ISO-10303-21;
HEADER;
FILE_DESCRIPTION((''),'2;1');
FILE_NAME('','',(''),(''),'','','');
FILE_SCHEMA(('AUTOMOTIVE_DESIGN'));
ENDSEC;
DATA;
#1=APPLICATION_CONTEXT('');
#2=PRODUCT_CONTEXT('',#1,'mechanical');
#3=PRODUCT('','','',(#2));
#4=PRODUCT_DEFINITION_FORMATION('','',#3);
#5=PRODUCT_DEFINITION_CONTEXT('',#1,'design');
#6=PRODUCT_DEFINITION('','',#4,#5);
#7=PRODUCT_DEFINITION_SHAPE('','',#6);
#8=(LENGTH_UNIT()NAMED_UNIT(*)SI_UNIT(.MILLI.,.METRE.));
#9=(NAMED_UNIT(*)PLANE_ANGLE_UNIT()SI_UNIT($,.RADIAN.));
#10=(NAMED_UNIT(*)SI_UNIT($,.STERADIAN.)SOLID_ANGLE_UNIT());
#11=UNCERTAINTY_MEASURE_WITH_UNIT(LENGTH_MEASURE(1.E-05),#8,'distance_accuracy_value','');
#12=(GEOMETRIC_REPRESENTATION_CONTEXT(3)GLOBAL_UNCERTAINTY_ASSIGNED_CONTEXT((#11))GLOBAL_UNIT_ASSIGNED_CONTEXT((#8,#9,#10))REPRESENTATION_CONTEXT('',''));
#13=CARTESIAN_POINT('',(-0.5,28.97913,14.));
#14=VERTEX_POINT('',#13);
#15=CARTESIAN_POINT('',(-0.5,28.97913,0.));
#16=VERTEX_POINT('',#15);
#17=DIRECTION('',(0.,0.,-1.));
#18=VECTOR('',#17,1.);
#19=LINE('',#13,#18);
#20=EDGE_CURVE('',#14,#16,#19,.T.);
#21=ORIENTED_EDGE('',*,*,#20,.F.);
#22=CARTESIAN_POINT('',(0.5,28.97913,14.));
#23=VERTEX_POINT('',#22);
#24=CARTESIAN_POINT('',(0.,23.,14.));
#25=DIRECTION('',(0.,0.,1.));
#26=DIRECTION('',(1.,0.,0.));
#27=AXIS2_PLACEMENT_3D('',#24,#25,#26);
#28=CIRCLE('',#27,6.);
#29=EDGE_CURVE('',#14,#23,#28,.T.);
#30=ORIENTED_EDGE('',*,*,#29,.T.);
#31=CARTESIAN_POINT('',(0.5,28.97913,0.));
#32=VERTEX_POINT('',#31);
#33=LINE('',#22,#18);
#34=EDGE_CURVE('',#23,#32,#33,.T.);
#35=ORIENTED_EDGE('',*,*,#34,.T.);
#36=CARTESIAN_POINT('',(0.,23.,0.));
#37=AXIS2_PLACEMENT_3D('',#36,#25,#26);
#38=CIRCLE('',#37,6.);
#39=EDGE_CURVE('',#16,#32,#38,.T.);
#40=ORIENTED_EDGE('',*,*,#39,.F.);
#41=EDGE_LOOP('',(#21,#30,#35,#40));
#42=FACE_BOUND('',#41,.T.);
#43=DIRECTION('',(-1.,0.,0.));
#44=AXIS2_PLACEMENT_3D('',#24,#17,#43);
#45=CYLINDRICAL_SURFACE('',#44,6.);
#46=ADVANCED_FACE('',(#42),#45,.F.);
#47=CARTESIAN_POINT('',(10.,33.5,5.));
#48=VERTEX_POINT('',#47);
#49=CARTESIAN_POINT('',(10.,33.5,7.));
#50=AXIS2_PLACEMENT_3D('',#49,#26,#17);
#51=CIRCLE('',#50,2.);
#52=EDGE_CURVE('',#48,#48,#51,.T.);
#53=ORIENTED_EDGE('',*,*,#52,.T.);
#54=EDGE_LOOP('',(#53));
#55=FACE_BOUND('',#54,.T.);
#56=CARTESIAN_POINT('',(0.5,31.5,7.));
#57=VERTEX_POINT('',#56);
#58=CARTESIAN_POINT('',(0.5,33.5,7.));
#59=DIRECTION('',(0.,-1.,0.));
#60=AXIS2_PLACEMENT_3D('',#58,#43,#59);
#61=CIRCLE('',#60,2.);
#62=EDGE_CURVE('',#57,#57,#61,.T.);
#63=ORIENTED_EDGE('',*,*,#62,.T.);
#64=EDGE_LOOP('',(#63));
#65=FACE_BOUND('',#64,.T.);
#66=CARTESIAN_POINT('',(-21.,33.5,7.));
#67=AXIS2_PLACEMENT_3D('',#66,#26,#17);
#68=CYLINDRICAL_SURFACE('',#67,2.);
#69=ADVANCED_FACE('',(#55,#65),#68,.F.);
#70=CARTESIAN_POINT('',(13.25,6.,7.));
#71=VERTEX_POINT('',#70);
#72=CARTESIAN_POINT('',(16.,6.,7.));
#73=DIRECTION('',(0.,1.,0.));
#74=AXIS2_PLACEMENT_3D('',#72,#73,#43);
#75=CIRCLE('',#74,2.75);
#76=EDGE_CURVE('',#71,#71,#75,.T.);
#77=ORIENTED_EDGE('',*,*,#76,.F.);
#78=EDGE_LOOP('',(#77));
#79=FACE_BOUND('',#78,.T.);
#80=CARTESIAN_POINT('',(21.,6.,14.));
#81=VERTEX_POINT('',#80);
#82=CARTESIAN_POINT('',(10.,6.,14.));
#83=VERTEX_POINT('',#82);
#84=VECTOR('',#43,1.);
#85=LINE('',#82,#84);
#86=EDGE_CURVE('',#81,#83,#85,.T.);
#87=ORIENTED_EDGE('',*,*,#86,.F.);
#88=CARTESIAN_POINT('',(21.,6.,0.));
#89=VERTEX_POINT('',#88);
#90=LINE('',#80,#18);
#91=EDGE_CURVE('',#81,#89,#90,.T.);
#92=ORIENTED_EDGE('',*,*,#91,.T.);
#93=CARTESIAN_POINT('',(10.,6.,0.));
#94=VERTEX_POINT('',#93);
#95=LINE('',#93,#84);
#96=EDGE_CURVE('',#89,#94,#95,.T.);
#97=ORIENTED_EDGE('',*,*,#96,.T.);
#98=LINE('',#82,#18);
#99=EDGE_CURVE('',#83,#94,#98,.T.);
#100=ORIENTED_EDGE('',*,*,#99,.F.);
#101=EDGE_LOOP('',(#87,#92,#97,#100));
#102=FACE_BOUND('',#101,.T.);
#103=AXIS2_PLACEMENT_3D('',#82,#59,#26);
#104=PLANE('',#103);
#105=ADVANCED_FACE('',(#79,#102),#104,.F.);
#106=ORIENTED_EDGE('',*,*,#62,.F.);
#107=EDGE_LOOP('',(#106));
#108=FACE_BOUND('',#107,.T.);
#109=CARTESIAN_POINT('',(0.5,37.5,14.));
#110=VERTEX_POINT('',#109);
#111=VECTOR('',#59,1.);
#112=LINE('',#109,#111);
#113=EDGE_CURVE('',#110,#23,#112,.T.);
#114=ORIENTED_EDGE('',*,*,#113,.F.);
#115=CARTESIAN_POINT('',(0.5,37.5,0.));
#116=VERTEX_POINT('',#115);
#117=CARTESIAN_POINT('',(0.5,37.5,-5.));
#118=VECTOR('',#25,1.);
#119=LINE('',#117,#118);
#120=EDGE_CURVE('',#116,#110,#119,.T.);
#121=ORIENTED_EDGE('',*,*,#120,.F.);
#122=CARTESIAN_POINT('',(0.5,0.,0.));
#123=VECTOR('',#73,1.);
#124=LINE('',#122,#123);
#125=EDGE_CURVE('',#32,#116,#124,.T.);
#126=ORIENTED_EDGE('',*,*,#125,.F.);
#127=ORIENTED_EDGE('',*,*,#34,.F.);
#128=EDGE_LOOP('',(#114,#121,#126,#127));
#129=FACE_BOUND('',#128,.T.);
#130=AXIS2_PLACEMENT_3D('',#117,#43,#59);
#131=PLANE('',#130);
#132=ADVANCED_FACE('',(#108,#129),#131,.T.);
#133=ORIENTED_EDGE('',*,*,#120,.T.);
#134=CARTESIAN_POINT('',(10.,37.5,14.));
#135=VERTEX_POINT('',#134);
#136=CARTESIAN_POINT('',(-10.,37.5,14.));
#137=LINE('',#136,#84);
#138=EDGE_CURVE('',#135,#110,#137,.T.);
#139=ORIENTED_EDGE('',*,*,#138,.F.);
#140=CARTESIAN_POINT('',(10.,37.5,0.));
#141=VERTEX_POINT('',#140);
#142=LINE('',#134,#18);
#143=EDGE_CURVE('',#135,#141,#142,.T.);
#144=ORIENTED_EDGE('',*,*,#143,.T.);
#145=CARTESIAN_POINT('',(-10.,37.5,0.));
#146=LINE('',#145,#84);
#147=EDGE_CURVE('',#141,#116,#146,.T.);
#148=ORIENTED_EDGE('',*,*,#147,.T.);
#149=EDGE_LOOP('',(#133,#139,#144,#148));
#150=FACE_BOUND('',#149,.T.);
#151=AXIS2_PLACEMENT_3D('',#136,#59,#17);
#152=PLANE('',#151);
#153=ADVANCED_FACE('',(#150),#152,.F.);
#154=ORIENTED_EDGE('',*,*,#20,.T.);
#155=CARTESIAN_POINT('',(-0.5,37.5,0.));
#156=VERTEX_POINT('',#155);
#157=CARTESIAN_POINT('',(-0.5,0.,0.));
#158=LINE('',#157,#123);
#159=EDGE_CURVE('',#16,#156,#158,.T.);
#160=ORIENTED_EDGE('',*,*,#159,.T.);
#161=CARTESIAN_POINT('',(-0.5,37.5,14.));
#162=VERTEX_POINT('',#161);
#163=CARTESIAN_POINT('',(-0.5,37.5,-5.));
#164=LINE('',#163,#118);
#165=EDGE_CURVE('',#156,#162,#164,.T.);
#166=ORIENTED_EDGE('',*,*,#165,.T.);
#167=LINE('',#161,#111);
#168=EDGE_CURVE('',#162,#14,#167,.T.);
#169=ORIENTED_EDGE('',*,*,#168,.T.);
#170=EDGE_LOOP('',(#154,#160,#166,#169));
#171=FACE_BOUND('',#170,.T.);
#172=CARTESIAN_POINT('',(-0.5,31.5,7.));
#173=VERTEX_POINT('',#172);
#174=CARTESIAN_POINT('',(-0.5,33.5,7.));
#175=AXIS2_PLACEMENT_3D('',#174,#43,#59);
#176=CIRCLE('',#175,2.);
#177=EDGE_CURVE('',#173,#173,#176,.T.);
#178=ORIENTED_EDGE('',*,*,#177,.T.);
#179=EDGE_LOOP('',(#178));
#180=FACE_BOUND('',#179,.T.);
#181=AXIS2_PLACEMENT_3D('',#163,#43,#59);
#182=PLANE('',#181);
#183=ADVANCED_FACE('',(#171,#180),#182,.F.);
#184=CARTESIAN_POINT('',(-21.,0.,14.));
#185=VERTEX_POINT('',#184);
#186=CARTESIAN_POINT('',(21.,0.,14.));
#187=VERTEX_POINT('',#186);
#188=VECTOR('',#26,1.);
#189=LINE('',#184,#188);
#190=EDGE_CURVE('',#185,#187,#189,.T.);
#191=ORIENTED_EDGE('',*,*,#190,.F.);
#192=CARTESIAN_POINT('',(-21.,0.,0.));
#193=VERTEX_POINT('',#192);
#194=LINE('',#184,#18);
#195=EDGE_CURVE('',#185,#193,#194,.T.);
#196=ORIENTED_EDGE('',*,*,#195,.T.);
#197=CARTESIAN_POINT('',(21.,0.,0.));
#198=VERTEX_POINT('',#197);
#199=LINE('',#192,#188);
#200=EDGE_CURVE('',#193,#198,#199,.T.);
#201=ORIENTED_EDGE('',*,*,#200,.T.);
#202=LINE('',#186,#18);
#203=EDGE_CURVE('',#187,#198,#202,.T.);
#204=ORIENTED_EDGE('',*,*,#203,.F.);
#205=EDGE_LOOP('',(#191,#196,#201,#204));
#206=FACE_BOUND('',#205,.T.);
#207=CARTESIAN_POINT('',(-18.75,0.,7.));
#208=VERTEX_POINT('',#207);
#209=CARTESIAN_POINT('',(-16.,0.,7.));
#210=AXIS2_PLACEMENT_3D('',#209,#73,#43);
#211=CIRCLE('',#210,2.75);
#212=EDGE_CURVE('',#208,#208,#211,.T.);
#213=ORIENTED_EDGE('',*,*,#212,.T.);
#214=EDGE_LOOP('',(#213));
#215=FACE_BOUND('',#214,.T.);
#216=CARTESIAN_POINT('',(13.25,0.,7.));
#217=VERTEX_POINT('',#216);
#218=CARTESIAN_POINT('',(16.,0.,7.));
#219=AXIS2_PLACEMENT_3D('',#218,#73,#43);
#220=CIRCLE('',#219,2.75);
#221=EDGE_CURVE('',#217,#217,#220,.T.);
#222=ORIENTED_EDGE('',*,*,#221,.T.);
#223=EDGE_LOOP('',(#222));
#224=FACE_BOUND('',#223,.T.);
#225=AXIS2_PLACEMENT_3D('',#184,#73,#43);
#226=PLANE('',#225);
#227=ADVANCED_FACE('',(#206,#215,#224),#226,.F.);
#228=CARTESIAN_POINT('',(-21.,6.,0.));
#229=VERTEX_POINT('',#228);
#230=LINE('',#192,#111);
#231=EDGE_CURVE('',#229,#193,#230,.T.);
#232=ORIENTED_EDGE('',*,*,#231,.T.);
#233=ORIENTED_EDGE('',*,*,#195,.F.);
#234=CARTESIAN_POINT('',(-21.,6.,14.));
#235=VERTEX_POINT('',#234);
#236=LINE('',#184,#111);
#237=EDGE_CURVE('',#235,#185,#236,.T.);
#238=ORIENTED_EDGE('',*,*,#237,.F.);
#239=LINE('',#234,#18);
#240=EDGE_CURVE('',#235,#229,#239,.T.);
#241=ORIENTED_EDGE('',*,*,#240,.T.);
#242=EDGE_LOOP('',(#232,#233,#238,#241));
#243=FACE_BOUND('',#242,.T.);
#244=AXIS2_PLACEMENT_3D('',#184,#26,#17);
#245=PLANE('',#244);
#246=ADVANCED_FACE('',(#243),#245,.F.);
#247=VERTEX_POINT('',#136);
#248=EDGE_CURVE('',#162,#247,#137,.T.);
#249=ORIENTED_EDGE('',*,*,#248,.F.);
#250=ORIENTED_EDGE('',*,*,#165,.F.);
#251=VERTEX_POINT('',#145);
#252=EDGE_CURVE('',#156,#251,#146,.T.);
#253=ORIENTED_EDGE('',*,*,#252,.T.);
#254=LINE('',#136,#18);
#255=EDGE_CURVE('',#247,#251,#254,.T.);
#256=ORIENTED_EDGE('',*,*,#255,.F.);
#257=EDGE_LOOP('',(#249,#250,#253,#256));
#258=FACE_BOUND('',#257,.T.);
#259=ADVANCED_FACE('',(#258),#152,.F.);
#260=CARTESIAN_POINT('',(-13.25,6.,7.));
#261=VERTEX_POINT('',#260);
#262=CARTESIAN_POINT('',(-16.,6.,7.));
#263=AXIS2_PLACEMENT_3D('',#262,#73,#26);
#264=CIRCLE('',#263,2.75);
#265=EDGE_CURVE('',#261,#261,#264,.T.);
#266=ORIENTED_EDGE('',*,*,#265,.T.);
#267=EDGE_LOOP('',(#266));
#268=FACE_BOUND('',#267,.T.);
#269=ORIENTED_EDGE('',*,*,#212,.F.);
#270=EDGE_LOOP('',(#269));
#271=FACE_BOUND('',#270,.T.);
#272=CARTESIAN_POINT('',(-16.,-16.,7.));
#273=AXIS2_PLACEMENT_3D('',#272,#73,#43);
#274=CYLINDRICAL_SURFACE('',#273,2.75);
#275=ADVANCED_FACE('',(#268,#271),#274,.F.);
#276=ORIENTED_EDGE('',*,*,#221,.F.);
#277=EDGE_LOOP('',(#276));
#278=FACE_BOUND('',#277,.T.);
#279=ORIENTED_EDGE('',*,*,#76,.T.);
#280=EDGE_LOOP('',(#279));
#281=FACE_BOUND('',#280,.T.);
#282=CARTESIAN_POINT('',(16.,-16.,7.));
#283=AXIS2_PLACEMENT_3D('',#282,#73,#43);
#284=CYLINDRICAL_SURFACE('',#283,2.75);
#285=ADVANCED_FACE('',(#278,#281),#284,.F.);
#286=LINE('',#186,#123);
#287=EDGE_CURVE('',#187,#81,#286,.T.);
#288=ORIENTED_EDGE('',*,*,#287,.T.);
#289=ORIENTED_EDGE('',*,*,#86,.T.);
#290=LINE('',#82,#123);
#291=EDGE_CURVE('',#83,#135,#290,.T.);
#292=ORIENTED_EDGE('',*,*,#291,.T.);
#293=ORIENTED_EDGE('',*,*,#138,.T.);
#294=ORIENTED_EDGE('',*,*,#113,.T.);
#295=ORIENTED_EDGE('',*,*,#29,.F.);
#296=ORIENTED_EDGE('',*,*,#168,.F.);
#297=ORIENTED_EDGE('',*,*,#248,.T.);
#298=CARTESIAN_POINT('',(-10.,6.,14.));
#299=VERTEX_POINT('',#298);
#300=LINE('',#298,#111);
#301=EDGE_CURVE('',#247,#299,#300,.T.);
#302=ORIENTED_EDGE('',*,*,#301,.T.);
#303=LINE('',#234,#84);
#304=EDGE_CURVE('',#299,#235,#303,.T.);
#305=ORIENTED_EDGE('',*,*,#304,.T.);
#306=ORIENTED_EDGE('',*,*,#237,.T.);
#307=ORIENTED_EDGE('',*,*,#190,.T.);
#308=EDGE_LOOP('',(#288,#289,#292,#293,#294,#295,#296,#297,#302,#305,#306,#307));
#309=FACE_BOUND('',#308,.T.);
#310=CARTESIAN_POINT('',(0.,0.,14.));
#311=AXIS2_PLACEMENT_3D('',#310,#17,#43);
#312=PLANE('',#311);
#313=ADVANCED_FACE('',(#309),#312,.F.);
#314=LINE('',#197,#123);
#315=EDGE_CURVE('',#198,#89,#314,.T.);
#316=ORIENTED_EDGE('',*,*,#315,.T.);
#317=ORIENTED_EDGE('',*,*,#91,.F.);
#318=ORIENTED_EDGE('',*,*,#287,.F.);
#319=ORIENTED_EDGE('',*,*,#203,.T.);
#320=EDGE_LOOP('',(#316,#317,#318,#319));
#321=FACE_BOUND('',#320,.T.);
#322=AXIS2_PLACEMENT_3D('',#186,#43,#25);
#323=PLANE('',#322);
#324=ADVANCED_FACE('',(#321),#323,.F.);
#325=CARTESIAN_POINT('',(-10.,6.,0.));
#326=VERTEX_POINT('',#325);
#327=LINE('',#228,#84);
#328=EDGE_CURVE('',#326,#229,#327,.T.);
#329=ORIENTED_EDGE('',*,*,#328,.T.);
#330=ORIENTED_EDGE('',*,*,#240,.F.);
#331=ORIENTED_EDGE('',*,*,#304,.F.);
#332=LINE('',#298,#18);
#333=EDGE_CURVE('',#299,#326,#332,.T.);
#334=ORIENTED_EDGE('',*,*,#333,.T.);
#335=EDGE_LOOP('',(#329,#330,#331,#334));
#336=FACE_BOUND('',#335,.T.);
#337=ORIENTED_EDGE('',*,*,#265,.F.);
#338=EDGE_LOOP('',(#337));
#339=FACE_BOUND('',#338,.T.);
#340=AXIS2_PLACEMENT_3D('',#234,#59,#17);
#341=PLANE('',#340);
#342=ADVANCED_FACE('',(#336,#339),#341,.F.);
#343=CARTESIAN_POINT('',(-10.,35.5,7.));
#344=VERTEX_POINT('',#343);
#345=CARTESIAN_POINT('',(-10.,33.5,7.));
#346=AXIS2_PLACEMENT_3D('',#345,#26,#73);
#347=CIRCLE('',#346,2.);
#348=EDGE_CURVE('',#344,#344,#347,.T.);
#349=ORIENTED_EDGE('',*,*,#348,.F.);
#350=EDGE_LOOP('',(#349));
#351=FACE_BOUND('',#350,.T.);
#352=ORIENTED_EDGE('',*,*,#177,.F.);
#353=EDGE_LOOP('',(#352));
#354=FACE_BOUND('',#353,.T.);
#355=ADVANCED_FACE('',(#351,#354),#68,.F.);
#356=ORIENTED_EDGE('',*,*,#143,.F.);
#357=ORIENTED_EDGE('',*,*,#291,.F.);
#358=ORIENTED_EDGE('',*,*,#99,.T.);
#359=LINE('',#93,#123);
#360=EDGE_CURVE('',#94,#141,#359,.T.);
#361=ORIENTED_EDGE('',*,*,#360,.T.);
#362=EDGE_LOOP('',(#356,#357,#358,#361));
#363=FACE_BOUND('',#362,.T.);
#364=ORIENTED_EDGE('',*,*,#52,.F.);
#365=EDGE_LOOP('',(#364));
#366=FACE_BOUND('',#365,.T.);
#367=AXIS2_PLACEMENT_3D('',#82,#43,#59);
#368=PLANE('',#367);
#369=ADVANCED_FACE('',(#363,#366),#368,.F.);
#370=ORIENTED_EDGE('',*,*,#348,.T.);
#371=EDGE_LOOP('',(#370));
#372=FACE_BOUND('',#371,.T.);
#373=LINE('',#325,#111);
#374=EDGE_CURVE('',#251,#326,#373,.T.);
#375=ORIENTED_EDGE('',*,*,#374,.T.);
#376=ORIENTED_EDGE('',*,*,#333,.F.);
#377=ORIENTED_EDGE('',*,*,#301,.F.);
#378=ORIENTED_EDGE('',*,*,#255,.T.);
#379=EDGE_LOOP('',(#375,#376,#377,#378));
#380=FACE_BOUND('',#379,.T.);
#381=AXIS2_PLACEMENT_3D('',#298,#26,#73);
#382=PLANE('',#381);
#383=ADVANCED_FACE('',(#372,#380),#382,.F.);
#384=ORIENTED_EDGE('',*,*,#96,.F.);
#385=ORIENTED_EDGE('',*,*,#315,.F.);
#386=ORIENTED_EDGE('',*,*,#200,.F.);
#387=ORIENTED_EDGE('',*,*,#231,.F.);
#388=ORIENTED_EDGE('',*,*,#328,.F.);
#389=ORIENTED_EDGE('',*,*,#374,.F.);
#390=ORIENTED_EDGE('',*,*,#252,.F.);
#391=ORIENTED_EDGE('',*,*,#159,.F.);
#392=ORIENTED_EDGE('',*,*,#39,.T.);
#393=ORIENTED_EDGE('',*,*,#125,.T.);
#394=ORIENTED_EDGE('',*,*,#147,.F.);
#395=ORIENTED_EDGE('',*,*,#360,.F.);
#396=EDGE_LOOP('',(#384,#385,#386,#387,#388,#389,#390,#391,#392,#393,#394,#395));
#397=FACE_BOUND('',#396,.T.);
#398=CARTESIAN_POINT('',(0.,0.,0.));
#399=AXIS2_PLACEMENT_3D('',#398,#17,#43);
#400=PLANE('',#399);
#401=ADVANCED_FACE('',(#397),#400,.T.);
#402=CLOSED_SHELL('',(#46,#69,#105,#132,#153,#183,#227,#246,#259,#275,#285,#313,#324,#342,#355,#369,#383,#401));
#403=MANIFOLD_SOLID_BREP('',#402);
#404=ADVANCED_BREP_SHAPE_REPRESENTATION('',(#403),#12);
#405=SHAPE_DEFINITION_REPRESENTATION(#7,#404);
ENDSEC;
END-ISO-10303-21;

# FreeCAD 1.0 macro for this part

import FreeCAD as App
import Part
import Sketcher

V = App.Vector

doc = App.newDocument("Part")
params = doc.addObject("Spreadsheet::Sheet", "Params")
for row, (alias, value) in enumerate([
    ("sketch1_diameter", "12 mm"),
    ("sketch1_width", "42 mm"),
    ("sketch1_width2", "11 mm"),
    ("sketch1_height", "6 mm"),
    ("sketch1_height2", "31.5 mm"),
    ("pad1_length", "14 mm"),
    ("sketch2_width", "1 mm"),
    ("pocket1_length", "19 mm"),
    ("sketch3_diameter", "4 mm"),
    ("pocket2_length", "31 mm"),
    ("sketch4_diameter", "5.5 mm"),
    ("pocket3_length", "22 mm"),
], start=1):
    params.set(f"A{row}", alias)
    params.set(f"B{row}", "=" + value)
    params.setAlias(f"B{row}", alias)

body = doc.addObject("PartDesign::Body", "Body")

sketch1 = doc.addObject("Sketcher::SketchObject", "Sketch")
body.addObject(sketch1)
sketch1.AttachmentSupport = (doc.XY_Plane, [""])
sketch1.MapMode = "FlatFace"
sketch1.addGeometry([
    Part.LineSegment(V(-21, 0, 0), V(21, 0, 0)),
    Part.LineSegment(V(21, 0, 0), V(21, 6, 0)),
    Part.LineSegment(V(21, 6, 0), V(10, 6, 0)),
    Part.LineSegment(V(10, 6, 0), V(10, 37.5, 0)),
    Part.LineSegment(V(10, 37.5, 0), V(-10, 37.5, 0)),
    Part.LineSegment(V(-10, 37.5, 0), V(-10, 6, 0)),
    Part.LineSegment(V(-10, 6, 0), V(-21, 6, 0)),
    Part.LineSegment(V(-21, 6, 0), V(-21, 0, 0)),
    Part.Circle(V(0, 23, 0), V(0, 0, 1), 6),
], False)
sketch1.addConstraint([
    Sketcher.Constraint("Coincident", 0, 2, 1, 1),
    Sketcher.Constraint("Coincident", 1, 2, 2, 1),
    Sketcher.Constraint("Coincident", 2, 2, 3, 1),
    Sketcher.Constraint("Coincident", 3, 2, 4, 1),
    Sketcher.Constraint("Coincident", 4, 2, 5, 1),
    Sketcher.Constraint("Coincident", 5, 2, 6, 1),
    Sketcher.Constraint("Coincident", 6, 2, 7, 1),
    Sketcher.Constraint("Coincident", 7, 2, 0, 1),
    Sketcher.Constraint("Horizontal", 0),
    Sketcher.Constraint("Vertical", 1),
    Sketcher.Constraint("Horizontal", 2),
    Sketcher.Constraint("Vertical", 3),
    Sketcher.Constraint("Horizontal", 4),
    Sketcher.Constraint("Vertical", 5),
    Sketcher.Constraint("Horizontal", 6),
    Sketcher.Constraint("Vertical", 7),
    Sketcher.Constraint("Symmetric", 0, 2, 7, 2, -1, 1),
    Sketcher.Constraint("Symmetric", 2, 2, 5, 2, -2),
    Sketcher.Constraint("PointOnObject", 8, 3, -2),
    Sketcher.Constraint("Diameter", 8, 12.0),
    Sketcher.Constraint("DistanceX", 0, 1, 0, 2, 42.0),
    Sketcher.Constraint("DistanceX", 2, 2, 2, 1, 11.0),
    Sketcher.Constraint("DistanceY", 1, 1, 1, 2, 6.0),
    Sketcher.Constraint("DistanceY", 3, 1, 3, 2, 31.5),
    Sketcher.Constraint("DistanceY", -1, 1, 8, 3, 23.0),
])
sketch1.setExpression("Constraints[19]", "Params.sketch1_diameter")
sketch1.setExpression("Constraints[20]", "Params.sketch1_width")
sketch1.setExpression("Constraints[21]", "Params.sketch1_width2")
sketch1.setExpression("Constraints[22]", "Params.sketch1_height")
sketch1.setExpression("Constraints[23]", "Params.sketch1_height2")
pad1 = doc.addObject("PartDesign::Pad", "Pad")
body.addObject(pad1)
pad1.Profile = sketch1
pad1.setExpression("Length", "Params.pad1_length")

sketch2 = doc.addObject("Sketcher::SketchObject", "Sketch001")
body.addObject(sketch2)
sketch2.AttachmentSupport = (doc.XY_Plane, [""])
sketch2.MapMode = "FlatFace"
sketch2.AttachmentOffset = App.Placement(V(0, 0, 14), App.Rotation())
sketch2.addGeometry([
    Part.LineSegment(V(-0.5, 37.5, 0), V(-0.5, 21.009827, 0)),
    Part.LineSegment(V(-0.5, 21.009827, 0), V(0.5, 21.009827, 0)),
    Part.LineSegment(V(0.5, 21.009827, 0), V(0.5, 37.5, 0)),
    Part.LineSegment(V(0.5, 37.5, 0), V(-0.5, 37.5, 0)),
], False)
sketch2.addConstraint([
    Sketcher.Constraint("Coincident", 0, 2, 1, 1),
    Sketcher.Constraint("Coincident", 1, 2, 2, 1),
    Sketcher.Constraint("Coincident", 2, 2, 3, 1),
    Sketcher.Constraint("Coincident", 3, 2, 0, 1),
    Sketcher.Constraint("Vertical", 0),
    Sketcher.Constraint("Horizontal", 1),
    Sketcher.Constraint("Vertical", 2),
    Sketcher.Constraint("Horizontal", 3),
    Sketcher.Constraint("DistanceX", 1, 1, 1, 2, 1.0),
    Sketcher.Constraint("DistanceX", 0, 2, -1, 1, 0.5),
    Sketcher.Constraint("DistanceY", -1, 1, 2, 2, 37.5),
    Sketcher.Constraint("DistanceY", 0, 2, 0, 1, 16.490173),
])
sketch2.setExpression("Constraints[8]", "Params.sketch2_width")
pocket1 = doc.addObject("PartDesign::Pocket", "Pocket")
body.addObject(pocket1)
pocket1.Profile = sketch2
pocket1.setExpression("Length", "Params.pocket1_length")

sketch3 = doc.addObject("Sketcher::SketchObject", "Sketch002")
body.addObject(sketch3)
sketch3.AttachmentSupport = (doc.YZ_Plane, [""])
sketch3.MapMode = "FlatFace"
sketch3.AttachmentOffset = App.Placement(V(0, 0, 10), App.Rotation())
sketch3.addGeometry(Part.Circle(V(33.5, 7, 0), V(0, 0, 1), 2), False)
sketch3.addConstraint([
    Sketcher.Constraint("Diameter", 0, 4.0),
    Sketcher.Constraint("DistanceY", -1, 1, 0, 3, 7.0),
    Sketcher.Constraint("DistanceX", -1, 1, 0, 3, 33.5),
])
sketch3.setExpression("Constraints[0]", "Params.sketch3_diameter")
pocket2 = doc.addObject("PartDesign::Pocket", "Pocket001")
body.addObject(pocket2)
pocket2.Profile = sketch3
pocket2.setExpression("Length", "Params.pocket2_length")

sketch4 = doc.addObject("Sketcher::SketchObject", "Sketch003")
body.addObject(sketch4)
sketch4.AttachmentSupport = (doc.XZ_Plane, [""])
sketch4.MapMode = "FlatFace"
sketch4.AttachmentOffset = App.Placement(V(0, 0, -6), App.Rotation())
sketch4.addGeometry([
    Part.Circle(V(16, 7, 0), V(0, 0, 1), 2.75),
    Part.Circle(V(-16, 7, 0), V(0, 0, 1), 2.75),
], False)
sketch4.addConstraint([
    Sketcher.Constraint("Equal", 0, 1),
    Sketcher.Constraint("Symmetric", 0, 3, 1, 3, -2),
    Sketcher.Constraint("Diameter", 0, 5.5),
    Sketcher.Constraint("DistanceX", -1, 1, 0, 3, 16.0),
    Sketcher.Constraint("DistanceY", -1, 1, 0, 3, 7.0),
])
sketch4.setExpression("Constraints[2]", "Params.sketch4_diameter")
pocket3 = doc.addObject("PartDesign::Pocket", "Pocket002")
body.addObject(pocket3)
pocket3.Profile = sketch4
pocket3.setExpression("Length", "Params.pocket3_length")
pocket3.Reversed = True

doc.recompute()
